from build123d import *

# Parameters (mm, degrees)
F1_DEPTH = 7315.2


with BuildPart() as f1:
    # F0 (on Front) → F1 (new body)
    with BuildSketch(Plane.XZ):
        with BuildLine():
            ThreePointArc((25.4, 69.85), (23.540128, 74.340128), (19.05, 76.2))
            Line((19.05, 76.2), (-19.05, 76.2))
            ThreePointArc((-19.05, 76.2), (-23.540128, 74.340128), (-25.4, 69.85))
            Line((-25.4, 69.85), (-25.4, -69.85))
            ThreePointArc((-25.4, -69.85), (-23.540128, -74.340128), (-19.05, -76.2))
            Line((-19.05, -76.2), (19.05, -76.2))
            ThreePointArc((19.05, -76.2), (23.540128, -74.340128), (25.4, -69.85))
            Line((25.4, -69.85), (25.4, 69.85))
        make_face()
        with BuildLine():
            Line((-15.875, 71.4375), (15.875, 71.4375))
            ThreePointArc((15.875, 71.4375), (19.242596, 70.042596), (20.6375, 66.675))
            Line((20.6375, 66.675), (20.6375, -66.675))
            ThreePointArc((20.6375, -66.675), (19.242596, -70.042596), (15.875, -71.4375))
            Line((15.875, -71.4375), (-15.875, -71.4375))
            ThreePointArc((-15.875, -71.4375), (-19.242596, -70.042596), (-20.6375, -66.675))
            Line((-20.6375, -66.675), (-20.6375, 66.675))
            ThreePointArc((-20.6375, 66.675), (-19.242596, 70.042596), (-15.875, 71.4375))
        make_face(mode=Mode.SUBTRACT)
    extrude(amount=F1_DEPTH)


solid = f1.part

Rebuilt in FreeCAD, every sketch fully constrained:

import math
import FreeCAD as App
import Part
import Sketcher
Q = App.Units.Quantity

doc = App.newDocument("Part")
body = doc.addObject("PartDesign::Body", "Body")

# Sketch on XZ plane
sketch1 = body.newObject("Sketcher::SketchObject", "Sketch")
sketch1.AttachmentSupport = (doc.getObject("XZ_Plane"), [""])
sketch1.MapMode = "FlatFace"
sketch1.addGeometry([
    Part.ArcOfCircle(Part.Circle(App.Vector(19.05, 69.85, 0), App.Vector(0, 0, 1), 6.35), math.radians(0.000002), math.radians(89.999998)),  # 0
    Part.LineSegment(App.Vector(19.05, 76.2, 0), App.Vector(-19.05, 76.2, 0)),  # 1
    Part.ArcOfCircle(Part.Circle(App.Vector(-19.05, 69.85, 0), App.Vector(0, 0, 1), 6.35), math.radians(90.000002), math.radians(179.999998)),  # 2
    Part.LineSegment(App.Vector(-25.4, 69.85, 0), App.Vector(-25.4, -69.85, 0)),  # 3
    Part.ArcOfCircle(Part.Circle(App.Vector(-19.05, -69.85, 0), App.Vector(0, 0, 1), 6.35), math.radians(-179.999998), math.radians(-90.000002)),  # 4
    Part.LineSegment(App.Vector(-19.05, -76.2, 0), App.Vector(19.05, -76.2, 0)),  # 5
    Part.ArcOfCircle(Part.Circle(App.Vector(19.05, -69.85, 0), App.Vector(0, 0, 1), 6.35), math.radians(-89.999998), math.radians(-0.000002)),  # 6
    Part.LineSegment(App.Vector(25.4, -69.85, 0), App.Vector(25.4, 69.85, 0)),  # 7
    Part.ArcOfCircle(Part.Circle(App.Vector(-15.875, 66.675, 0), App.Vector(0, 0, 1), 4.7625), math.radians(90.000002), math.radians(179.999998)),  # 8
    Part.LineSegment(App.Vector(-15.875, 71.4375, 0), App.Vector(15.875, 71.4375, 0)),  # 9
    Part.ArcOfCircle(Part.Circle(App.Vector(15.875, 66.675, 0), App.Vector(0, 0, 1), 4.7625), math.radians(0.000002), math.radians(89.999998)),  # 10
    Part.LineSegment(App.Vector(20.6375, 66.675, 0), App.Vector(20.6375, -66.675, 0)),  # 11
    Part.ArcOfCircle(Part.Circle(App.Vector(15.875, -66.675, 0), App.Vector(0, 0, 1), 4.7625), math.radians(-89.999998), math.radians(-0.000002)),  # 12
    Part.LineSegment(App.Vector(15.875, -71.4375, 0), App.Vector(-15.875, -71.4375, 0)),  # 13
    Part.ArcOfCircle(Part.Circle(App.Vector(-15.875, -66.675, 0), App.Vector(0, 0, 1), 4.7625), math.radians(-179.999998), math.radians(-90.000002)),  # 14
    Part.LineSegment(App.Vector(-20.6375, -66.675, 0), App.Vector(-20.6375, 66.675, 0)),  # 15
], False)
sketch1.addConstraint([
    Sketcher.Constraint("Tangent", 0, 2, 1, 1),
    Sketcher.Constraint("Tangent", 1, 2, 2, 1),
    Sketcher.Constraint("Tangent", 2, 2, 3, 1),
    Sketcher.Constraint("Tangent", 3, 2, 4, 1),
    Sketcher.Constraint("Tangent", 4, 2, 5, 1),
    Sketcher.Constraint("Tangent", 5, 2, 6, 1),
    Sketcher.Constraint("Tangent", 6, 2, 7, 1),
    Sketcher.Constraint("Tangent", 7, 2, 0, 1),
    Sketcher.Constraint("Tangent", 8, 1, 9, 1),
    Sketcher.Constraint("Tangent", 9, 2, 10, 2),
    Sketcher.Constraint("Tangent", 10, 1, 11, 1),
    Sketcher.Constraint("Tangent", 11, 2, 12, 2),
    Sketcher.Constraint("Tangent", 12, 1, 13, 1),
    Sketcher.Constraint("Tangent", 13, 2, 14, 2),
    Sketcher.Constraint("Tangent", 14, 1, 15, 1),
    Sketcher.Constraint("Tangent", 15, 2, 8, 2),
    Sketcher.Constraint("Horizontal", 1),
    Sketcher.Constraint("Vertical", 3),
    Sketcher.Constraint("Horizontal", 5),
    Sketcher.Constraint("Vertical", 7),
    Sketcher.Constraint("Horizontal", 9),
    Sketcher.Constraint("Vertical", 11),
    Sketcher.Constraint("Horizontal", 13),
    Sketcher.Constraint("Vertical", 15),
    Sketcher.Constraint("Equal", 0, 2),
    Sketcher.Constraint("Equal", 2, 4),
    Sketcher.Constraint("Equal", 4, 6),
    Sketcher.Constraint("Equal", 8, 10),
    Sketcher.Constraint("Equal", 10, 12),
    Sketcher.Constraint("Equal", 12, 14),
    Sketcher.Constraint("Symmetric", 0, 3, 4, 3, -1, 1),
    Sketcher.Constraint("Symmetric", 8, 3, 12, 3, -1, 1),
    Sketcher.Constraint("Radius", 0, Q("0.25 in")),
    Sketcher.Constraint("DistanceX", 1, 2, 1, 1, Q("1.5 in")),
    Sketcher.Constraint("DistanceY", 3, 2, 3, 1, Q("5.5 in")),
    Sketcher.Constraint("Radius", 8, Q("0.1875 in")),
    Sketcher.Constraint("DistanceX", 9, 1, 9, 2, Q("1.25 in")),
    Sketcher.Constraint("DistanceY", 11, 2, 11, 1, Q("5.25 in")),
])
pad1 = body.newObject("PartDesign::Pad", "Pad")
pad1.Profile = sketch1
pad1.Length = Q("288 in")

doc.recompute()
